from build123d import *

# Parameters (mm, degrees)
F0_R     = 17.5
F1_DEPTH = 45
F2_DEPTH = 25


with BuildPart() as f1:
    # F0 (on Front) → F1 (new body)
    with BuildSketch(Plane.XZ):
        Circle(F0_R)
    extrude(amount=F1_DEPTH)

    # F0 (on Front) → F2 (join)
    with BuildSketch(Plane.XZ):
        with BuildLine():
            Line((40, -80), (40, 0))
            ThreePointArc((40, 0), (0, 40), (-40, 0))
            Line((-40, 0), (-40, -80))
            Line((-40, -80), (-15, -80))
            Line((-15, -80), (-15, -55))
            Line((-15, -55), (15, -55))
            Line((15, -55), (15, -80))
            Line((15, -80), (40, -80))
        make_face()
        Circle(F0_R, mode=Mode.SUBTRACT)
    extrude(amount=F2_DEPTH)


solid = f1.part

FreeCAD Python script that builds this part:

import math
import FreeCAD as App
import Part
import Sketcher
Q = App.Units.Quantity

doc = App.newDocument("Part")
body = doc.addObject("PartDesign::Body", "Body")

sketch1 = body.newObject("Sketcher::SketchObject", "Sketch")
sketch1.AttachmentSupport = (doc.getObject("XZ_Plane"), [""])
sketch1.MapMode = "FlatFace"
sketch1.addGeometry(Part.Circle(App.Vector(0, 0, 0), App.Vector(0, 0, 1), 18), False)
sketch1.addConstraint(Sketcher.Constraint("Coincident", 0, 3, -1, 1))
sketch1.addConstraint(Sketcher.Constraint("Diameter", 0, Q("35 mm")))
pad1 = body.newObject("PartDesign::Pad", "Pad")
pad1.Profile = sketch1
pad1.Length = 45

sketch2 = body.newObject("Sketcher::SketchObject", "Sketch001")
sketch2.AttachmentSupport = (doc.getObject("XZ_Plane"), [""])
sketch2.MapMode = "FlatFace"
sketch2.addGeometry(Part.LineSegment(App.Vector(40, -80, 0), App.Vector(40, 0, 0)), False)
sketch2.addGeometry(Part.ArcOfCircle(Part.Circle(App.Vector(0, 0, 0), App.Vector(0, 0, 1), 40), math.radians(0), math.radians(180)), False)
sketch2.addGeometry(Part.LineSegment(App.Vector(-40, 0, 0), App.Vector(-40, -80, 0)), False)
sketch2.addGeometry(Part.LineSegment(App.Vector(-40, -80, 0), App.Vector(-15, -80, 0)), False)
sketch2.addGeometry(Part.LineSegment(App.Vector(-15, -80, 0), App.Vector(-15, -55, 0)), False)
sketch2.addGeometry(Part.LineSegment(App.Vector(-15, -55, 0), App.Vector(15, -55, 0)), False)
sketch2.addGeometry(Part.LineSegment(App.Vector(15, -55, 0), App.Vector(15, -80, 0)), False)
sketch2.addGeometry(Part.LineSegment(App.Vector(15, -80, 0), App.Vector(40, -80, 0)), False)
sketch2.addGeometry(Part.Circle(App.Vector(0, 0, 0), App.Vector(0, 0, 1), 18), False)
sketch2.addConstraint(Sketcher.Constraint("Tangent", 0, 2, 1, 1))
sketch2.addConstraint(Sketcher.Constraint("Tangent", 1, 2, 2, 1))
sketch2.addConstraint(Sketcher.Constraint("Coincident", 2, 2, 3, 1))
sketch2.addConstraint(Sketcher.Constraint("Coincident", 3, 2, 4, 1))
sketch2.addConstraint(Sketcher.Constraint("Coincident", 4, 2, 5, 1))
sketch2.addConstraint(Sketcher.Constraint("Coincident", 5, 2, 6, 1))
sketch2.addConstraint(Sketcher.Constraint("Coincident", 6, 2, 7, 1))
sketch2.addConstraint(Sketcher.Constraint("Coincident", 7, 2, 0, 1))
sketch2.addConstraint(Sketcher.Constraint("Vertical", 0))
sketch2.addConstraint(Sketcher.Constraint("Vertical", 2))
sketch2.addConstraint(Sketcher.Constraint("Horizontal", 3))
sketch2.addConstraint(Sketcher.Constraint("Vertical", 4))
sketch2.addConstraint(Sketcher.Constraint("Horizontal", 5))
sketch2.addConstraint(Sketcher.Constraint("Vertical", 6))
sketch2.addConstraint(Sketcher.Constraint("Horizontal", 7))
sketch2.addConstraint(Sketcher.Constraint("Coincident", 1, 3, -1, 1))
sketch2.addConstraint(Sketcher.Constraint("Coincident", 8, 3, -1, 1))
sketch2.addConstraint(Sketcher.Constraint("Symmetric", 3, 2, 6, 2, -2))
sketch2.addConstraint(Sketcher.Constraint("Equal", 7, 4))
sketch2.addConstraint(Sketcher.Constraint("Diameter", 8, Q("35 mm")))
sketch2.addConstraint(Sketcher.Constraint("Radius", 1, Q("40 mm")))
sketch2.addConstraint(Sketcher.Constraint("DistanceX", 3, 1, 3, 2, Q("25 mm")))
sketch2.addConstraint(Sketcher.Constraint("DistanceY", 0, 1, 0, 2, Q("80 mm")))
pad2 = body.newObject("PartDesign::Pad", "Pad001")
pad2.Profile = sketch2
pad2.Length = 25

doc.recompute()
